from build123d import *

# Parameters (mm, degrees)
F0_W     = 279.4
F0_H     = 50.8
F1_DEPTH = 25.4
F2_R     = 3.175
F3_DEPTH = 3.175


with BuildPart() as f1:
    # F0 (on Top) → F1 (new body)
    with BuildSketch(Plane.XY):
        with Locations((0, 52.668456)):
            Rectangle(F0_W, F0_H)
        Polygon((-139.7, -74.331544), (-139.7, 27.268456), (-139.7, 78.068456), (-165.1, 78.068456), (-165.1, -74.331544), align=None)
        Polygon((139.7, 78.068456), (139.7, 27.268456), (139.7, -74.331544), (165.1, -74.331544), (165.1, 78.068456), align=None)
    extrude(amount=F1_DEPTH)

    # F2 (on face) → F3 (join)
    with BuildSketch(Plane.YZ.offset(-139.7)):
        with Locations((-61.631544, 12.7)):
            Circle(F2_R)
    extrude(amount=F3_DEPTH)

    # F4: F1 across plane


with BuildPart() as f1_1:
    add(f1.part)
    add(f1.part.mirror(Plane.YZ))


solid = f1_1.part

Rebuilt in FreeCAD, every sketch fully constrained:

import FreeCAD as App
import Part
import Sketcher
Q = App.Units.Quantity

doc = App.newDocument("Part")
params = doc.addObject("Spreadsheet::Sheet", "Params")
for row, (alias, value) in enumerate([
    ("sketch1_width", "11 in"),
    ("sketch1_width2", "1 in"),
    ("sketch1_height", "4 in"),
    ("sketch1_height2", "6 in"),
    ("pad1_length", "1 in"),
    ("sketch2_diameter", "0.25 in"),
    ("pad2_length", "0.125 in"),
], start=1):
    params.set(f"A{row}", alias)
    params.set(f"B{row}", "=" + value)
    params.setAlias(f"B{row}", alias)

body = doc.addObject("PartDesign::Body", "Body")

# Sketch on XY plane
sketch1 = body.newObject("Sketcher::SketchObject", "Sketch")
sketch1.AttachmentSupport = (doc.getObject("XY_Plane"), [""])
sketch1.MapMode = "FlatFace"
sketch1.addGeometry([
    Part.LineSegment(App.Vector(-140, 27, 0), App.Vector(140, 27, 0)),  # 0
    Part.LineSegment(App.Vector(140, 27, 0), App.Vector(140, -74, 0)),  # 1
    Part.LineSegment(App.Vector(140, -74, 0), App.Vector(165, -74, 0)),  # 2
    Part.LineSegment(App.Vector(165, -74, 0), App.Vector(165, 78, 0)),  # 3
    Part.LineSegment(App.Vector(165, 78, 0), App.Vector(-165, 78, 0)),  # 4
    Part.LineSegment(App.Vector(-165, 78, 0), App.Vector(-165, -74, 0)),  # 5
    Part.LineSegment(App.Vector(-165, -74, 0), App.Vector(-140, -74, 0)),  # 6
    Part.LineSegment(App.Vector(-140, -74, 0), App.Vector(-140, 27, 0)),  # 7
], False)
sketch1.addConstraint([
    Sketcher.Constraint("Coincident", 0, 2, 1, 1),
    Sketcher.Constraint("Coincident", 1, 2, 2, 1),
    Sketcher.Constraint("Coincident", 2, 2, 3, 1),
    Sketcher.Constraint("Coincident", 3, 2, 4, 1),
    Sketcher.Constraint("Coincident", 4, 2, 5, 1),
    Sketcher.Constraint("Coincident", 5, 2, 6, 1),
    Sketcher.Constraint("Coincident", 6, 2, 7, 1),
    Sketcher.Constraint("Coincident", 7, 2, 0, 1),
    Sketcher.Constraint("Horizontal", 0),
    Sketcher.Constraint("Vertical", 1),
    Sketcher.Constraint("Horizontal", 2),
    Sketcher.Constraint("Vertical", 3),
    Sketcher.Constraint("Horizontal", 4),
    Sketcher.Constraint("Vertical", 5),
    Sketcher.Constraint("Horizontal", 6),
    Sketcher.Constraint("Vertical", 7),
    Sketcher.Constraint("Symmetric", 2, 2, 5, 2, -2),
    Sketcher.Constraint("Equal", 2, 6),
    Sketcher.Constraint("DistanceX", 0, 1, 0, 2, Q("11 in")),
    Sketcher.Constraint("DistanceX", 2, 1, 2, 2, Q("1 in")),
    Sketcher.Constraint("DistanceY", 1, 2, 1, 1, Q("4 in")),
    Sketcher.Constraint("DistanceY", 3, 1, 3, 2, Q("6 in")),
    Sketcher.Constraint("DistanceY", -1, 1, 0, 2, Q("27.268456 mm")),
])
sketch1.setExpression("Constraints[18]", "Params.sketch1_width")
sketch1.setExpression("Constraints[19]", "Params.sketch1_width2")
sketch1.setExpression("Constraints[20]", "Params.sketch1_height")
sketch1.setExpression("Constraints[21]", "Params.sketch1_height2")
pad1 = body.newObject("PartDesign::Pad", "Pad")
pad1.Profile = sketch1
pad1.setExpression("Length", "Params.pad1_length")

# Sketch on YZ plane
sketch2 = body.newObject("Sketcher::SketchObject", "Sketch001")
sketch2.AttachmentSupport = (doc.getObject("YZ_Plane"), [""])
sketch2.MapMode = "FlatFace"
sketch2.AttachmentOffset = App.Placement(App.Vector(0, 0, -5.5 * 25.4), App.Rotation())
sketch2.addGeometry(Part.Circle(App.Vector(-61.6, 12.7, 0), App.Vector(0, 0, 1), 3.2), False)
sketch2.addConstraint([
    Sketcher.Constraint("Diameter", 0, Q("0.25 in")),
    Sketcher.Constraint("DistanceY", -1, 1, 0, 3, Q("0.5 in")),
    Sketcher.Constraint("DistanceX", 0, 3, -1, 1, Q("61.631544 mm")),
])
sketch2.setExpression("Constraints[0]", "Params.sketch2_diameter")
pad2 = body.newObject("PartDesign::Pad", "Pad001")
pad2.Profile = sketch2
pad2.setExpression("Length", "Params.pad2_length")
body2 = doc.addObject("PartDesign::Body", "Body001")
doc.recompute()

body2.BaseFeature = body
doc.recompute()

mirroring = doc.addObject("Part::Mirroring", "Mirroring")
mirroring.Source = body
mirroring.Base = App.Vector(0, 0, 0)
mirroring.Normal = App.Vector(1, 0, 0)
body3 = doc.addObject("PartDesign::Body", "Body002")
body3.BaseFeature = mirroring
boolean = body2.newObject("PartDesign::Boolean", "Boolean")
boolean.Type = "Fuse"
boolean.addObjects([body3])
doc.recompute()
mirroring.Visibility = False

doc.recompute()
